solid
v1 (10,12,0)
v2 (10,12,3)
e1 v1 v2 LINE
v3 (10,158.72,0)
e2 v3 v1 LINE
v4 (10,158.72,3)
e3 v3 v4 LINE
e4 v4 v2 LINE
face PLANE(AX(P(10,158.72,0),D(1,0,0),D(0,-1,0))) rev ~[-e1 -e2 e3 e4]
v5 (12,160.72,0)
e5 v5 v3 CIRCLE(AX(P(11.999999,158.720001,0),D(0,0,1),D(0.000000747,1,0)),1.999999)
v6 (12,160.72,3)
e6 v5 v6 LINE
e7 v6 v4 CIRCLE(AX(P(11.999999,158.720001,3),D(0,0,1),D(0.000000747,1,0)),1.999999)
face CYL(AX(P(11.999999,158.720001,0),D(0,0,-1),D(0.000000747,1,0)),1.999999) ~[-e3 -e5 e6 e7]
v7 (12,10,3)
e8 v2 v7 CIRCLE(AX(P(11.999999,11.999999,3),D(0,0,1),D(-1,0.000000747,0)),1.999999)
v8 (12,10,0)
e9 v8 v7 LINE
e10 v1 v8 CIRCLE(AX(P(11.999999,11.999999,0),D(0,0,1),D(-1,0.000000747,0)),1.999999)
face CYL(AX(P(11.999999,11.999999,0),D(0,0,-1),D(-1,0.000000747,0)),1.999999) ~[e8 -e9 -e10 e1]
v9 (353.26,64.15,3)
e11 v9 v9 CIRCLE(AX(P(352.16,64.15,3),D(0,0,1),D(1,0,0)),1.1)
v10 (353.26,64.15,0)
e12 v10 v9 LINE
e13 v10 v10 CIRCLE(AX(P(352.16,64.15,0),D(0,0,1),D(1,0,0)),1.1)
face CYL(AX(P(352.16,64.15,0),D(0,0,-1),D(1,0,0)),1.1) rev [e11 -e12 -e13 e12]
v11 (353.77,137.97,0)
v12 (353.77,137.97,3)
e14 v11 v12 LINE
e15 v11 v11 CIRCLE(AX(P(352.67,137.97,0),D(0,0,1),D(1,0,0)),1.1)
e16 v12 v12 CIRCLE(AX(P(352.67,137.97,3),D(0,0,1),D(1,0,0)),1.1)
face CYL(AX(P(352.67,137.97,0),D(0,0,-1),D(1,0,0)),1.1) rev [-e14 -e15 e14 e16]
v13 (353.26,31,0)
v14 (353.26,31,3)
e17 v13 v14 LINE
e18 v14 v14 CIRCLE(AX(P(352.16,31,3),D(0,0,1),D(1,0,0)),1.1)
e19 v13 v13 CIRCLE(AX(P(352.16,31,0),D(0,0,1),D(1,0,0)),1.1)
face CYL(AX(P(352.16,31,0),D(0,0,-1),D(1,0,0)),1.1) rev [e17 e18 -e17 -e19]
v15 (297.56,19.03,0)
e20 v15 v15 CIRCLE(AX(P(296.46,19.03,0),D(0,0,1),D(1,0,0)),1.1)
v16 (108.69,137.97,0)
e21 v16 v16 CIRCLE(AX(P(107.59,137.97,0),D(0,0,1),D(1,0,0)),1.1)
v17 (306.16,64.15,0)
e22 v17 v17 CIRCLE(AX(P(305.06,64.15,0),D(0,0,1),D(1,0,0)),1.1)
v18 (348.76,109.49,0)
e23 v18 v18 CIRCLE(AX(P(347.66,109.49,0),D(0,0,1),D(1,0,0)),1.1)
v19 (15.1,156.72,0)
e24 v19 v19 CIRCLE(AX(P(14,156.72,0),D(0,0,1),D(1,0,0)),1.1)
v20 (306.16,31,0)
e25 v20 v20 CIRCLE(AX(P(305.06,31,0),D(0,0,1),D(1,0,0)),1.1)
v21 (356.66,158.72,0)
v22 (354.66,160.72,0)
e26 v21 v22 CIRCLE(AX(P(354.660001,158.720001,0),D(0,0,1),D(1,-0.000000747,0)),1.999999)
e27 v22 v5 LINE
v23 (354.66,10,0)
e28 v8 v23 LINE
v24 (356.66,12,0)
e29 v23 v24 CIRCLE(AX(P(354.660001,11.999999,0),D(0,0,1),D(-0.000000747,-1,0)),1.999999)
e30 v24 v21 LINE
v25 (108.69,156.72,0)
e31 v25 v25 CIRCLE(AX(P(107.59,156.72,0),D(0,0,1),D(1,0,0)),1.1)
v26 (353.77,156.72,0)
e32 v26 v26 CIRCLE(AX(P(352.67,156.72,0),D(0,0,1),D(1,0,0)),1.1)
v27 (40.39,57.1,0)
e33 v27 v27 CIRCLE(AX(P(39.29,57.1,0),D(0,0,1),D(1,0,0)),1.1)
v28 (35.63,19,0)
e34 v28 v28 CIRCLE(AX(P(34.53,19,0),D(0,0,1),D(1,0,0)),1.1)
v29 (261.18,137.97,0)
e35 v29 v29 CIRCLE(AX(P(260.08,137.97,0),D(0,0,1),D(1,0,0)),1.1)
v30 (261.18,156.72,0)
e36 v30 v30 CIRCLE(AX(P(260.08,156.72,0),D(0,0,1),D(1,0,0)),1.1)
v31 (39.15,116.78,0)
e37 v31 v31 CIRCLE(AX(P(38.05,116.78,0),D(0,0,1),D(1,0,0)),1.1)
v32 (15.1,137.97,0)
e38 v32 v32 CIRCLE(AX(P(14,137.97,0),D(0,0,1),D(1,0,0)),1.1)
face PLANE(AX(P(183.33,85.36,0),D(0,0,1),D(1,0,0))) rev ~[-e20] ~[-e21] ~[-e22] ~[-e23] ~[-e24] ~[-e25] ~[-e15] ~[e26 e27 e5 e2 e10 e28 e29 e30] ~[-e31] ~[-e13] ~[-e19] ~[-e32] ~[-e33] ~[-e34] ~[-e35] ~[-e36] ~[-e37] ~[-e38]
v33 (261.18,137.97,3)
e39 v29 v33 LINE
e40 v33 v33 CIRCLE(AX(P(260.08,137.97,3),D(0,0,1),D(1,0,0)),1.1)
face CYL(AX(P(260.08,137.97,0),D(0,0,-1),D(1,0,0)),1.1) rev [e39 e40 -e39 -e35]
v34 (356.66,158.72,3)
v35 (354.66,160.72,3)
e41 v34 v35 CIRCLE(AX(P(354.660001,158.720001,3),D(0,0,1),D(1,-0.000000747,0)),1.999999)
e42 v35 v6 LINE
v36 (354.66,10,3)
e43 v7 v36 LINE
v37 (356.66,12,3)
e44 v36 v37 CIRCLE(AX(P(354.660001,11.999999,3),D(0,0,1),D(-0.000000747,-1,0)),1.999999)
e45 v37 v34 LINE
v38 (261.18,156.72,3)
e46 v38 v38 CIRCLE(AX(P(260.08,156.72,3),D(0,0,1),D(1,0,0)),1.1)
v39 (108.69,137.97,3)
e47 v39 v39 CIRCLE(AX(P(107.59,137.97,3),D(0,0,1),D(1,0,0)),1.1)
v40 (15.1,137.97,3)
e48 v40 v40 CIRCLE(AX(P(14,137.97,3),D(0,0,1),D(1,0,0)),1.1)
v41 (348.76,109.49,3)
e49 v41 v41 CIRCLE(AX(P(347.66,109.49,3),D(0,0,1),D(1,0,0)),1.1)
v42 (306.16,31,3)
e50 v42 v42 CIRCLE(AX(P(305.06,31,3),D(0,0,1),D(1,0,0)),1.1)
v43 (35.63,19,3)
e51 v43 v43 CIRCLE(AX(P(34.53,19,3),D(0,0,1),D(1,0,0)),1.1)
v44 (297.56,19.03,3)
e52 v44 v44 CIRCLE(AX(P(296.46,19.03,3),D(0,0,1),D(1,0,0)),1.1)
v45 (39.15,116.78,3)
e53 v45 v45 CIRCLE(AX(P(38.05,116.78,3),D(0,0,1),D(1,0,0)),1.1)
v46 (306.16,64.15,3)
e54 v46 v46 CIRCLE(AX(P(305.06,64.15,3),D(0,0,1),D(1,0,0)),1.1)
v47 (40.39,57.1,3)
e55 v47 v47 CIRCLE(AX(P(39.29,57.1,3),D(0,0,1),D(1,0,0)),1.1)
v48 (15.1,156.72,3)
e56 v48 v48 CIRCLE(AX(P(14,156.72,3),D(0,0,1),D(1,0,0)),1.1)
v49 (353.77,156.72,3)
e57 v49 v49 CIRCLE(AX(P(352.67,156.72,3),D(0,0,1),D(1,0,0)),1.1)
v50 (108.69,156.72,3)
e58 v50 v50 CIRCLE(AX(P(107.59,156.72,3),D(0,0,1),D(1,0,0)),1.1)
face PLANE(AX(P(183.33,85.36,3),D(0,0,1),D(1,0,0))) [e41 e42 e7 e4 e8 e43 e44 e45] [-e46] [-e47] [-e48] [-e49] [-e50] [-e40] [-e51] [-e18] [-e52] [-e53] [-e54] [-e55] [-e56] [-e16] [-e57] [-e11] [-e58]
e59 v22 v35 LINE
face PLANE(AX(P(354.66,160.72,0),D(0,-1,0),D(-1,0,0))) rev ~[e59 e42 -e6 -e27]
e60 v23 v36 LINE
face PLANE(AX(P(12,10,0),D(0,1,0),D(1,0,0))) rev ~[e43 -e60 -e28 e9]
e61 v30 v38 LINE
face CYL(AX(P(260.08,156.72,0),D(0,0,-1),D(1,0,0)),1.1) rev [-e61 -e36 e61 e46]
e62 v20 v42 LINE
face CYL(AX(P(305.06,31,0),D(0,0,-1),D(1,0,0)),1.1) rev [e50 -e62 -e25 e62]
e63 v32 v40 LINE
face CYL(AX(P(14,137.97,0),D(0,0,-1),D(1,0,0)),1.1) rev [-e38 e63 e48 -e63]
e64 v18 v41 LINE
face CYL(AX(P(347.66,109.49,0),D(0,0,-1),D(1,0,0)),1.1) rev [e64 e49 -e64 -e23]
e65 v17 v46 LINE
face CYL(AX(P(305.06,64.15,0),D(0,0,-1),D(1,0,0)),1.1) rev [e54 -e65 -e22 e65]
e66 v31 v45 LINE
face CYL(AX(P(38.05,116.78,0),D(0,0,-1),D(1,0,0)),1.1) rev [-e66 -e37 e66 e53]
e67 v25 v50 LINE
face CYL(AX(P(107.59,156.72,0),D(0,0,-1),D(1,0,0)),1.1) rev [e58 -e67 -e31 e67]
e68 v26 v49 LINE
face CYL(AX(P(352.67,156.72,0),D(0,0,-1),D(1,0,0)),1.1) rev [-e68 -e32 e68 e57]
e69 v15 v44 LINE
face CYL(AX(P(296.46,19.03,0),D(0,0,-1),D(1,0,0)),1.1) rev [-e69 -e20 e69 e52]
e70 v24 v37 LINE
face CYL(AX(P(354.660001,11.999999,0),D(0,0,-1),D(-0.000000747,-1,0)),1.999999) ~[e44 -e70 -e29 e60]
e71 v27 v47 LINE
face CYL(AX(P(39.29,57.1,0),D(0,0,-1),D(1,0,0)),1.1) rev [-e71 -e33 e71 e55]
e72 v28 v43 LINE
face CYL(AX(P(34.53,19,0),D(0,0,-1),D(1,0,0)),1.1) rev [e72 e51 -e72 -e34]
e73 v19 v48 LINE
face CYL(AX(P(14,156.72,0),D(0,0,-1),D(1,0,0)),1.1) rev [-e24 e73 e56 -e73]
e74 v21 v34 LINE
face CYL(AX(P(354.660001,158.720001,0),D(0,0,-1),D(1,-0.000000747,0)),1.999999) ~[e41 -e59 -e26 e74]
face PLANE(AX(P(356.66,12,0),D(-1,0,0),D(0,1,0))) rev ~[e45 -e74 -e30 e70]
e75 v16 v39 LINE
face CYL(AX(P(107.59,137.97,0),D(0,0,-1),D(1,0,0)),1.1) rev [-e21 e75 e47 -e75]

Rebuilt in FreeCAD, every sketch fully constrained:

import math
import FreeCAD as App
import Part
import Sketcher

V = App.Vector
Q = App.Units.Quantity

doc = App.newDocument("Part")
body = doc.addObject("PartDesign::Body", "Body")

sketch1 = body.newObject("Sketcher::SketchObject", "Sketch")
sketch1.AttachmentSupport = (doc.getObject("XY_Plane"), [""])
sketch1.MapMode = "FlatFace"
sketch1.addGeometry(Part.LineSegment(V(12, 10, 0), V(354.66, 10, 0)), False)
sketch1.addGeometry(Part.ArcOfCircle(Part.Circle(V(354.660001, 11.999999, 0), V(0, 0, 1), 1.999999), math.radians(-90.000043), math.radians(0.000043)), False)
sketch1.addGeometry(Part.LineSegment(V(356.66, 12, 0), V(356.66, 158.72, 0)), False)
sketch1.addGeometry(Part.ArcOfCircle(Part.Circle(V(354.660001, 158.720001, 0), V(0, 0, 1), 1.999999), math.radians(-0.000043), math.radians(90.000043)), False)
sketch1.addGeometry(Part.LineSegment(V(354.66, 160.72, 0), V(12, 160.72, 0)), False)
sketch1.addGeometry(Part.ArcOfCircle(Part.Circle(V(11.999999, 158.720001, 0), V(0, 0, 1), 1.999999), math.radians(89.999957), math.radians(180.000043)), False)
sketch1.addGeometry(Part.LineSegment(V(10, 158.72, 0), V(10, 12, 0)), False)
sketch1.addGeometry(Part.ArcOfCircle(Part.Circle(V(11.999999, 11.999999, 0), V(0, 0, 1), 1.999999), math.radians(179.999957), math.radians(270.000043)), False)
sketch1.addGeometry(Part.Circle(V(34.53, 19, 0), V(0, 0, 1), 1.1), False)
sketch1.addGeometry(Part.Circle(V(39.29, 57.1, 0), V(0, 0, 1), 1.1), False)
sketch1.addGeometry(Part.Circle(V(296.46, 19.03, 0), V(0, 0, 1), 1.1), False)
sketch1.addGeometry(Part.Circle(V(305.06, 31, 0), V(0, 0, 1), 1.1), False)
sketch1.addGeometry(Part.Circle(V(352.16, 31, 0), V(0, 0, 1), 1.1), False)
sketch1.addGeometry(Part.Circle(V(305.06, 64.15, 0), V(0, 0, 1), 1.1), False)
sketch1.addGeometry(Part.Circle(V(352.16, 64.15, 0), V(0, 0, 1), 1.1), False)
sketch1.addGeometry(Part.Circle(V(38.05, 116.78, 0), V(0, 0, 1), 1.1), False)
sketch1.addGeometry(Part.Circle(V(14, 137.97, 0), V(0, 0, 1), 1.1), False)
sketch1.addGeometry(Part.Circle(V(14, 156.72, 0), V(0, 0, 1), 1.1), False)
sketch1.addGeometry(Part.Circle(V(107.59, 137.97, 0), V(0, 0, 1), 1.1), False)
sketch1.addGeometry(Part.Circle(V(107.59, 156.72, 0), V(0, 0, 1), 1.1), False)
sketch1.addGeometry(Part.Circle(V(347.66, 109.49, 0), V(0, 0, 1), 1.1), False)
sketch1.addGeometry(Part.Circle(V(260.08, 137.97, 0), V(0, 0, 1), 1.1), False)
sketch1.addGeometry(Part.Circle(V(260.08, 156.72, 0), V(0, 0, 1), 1.1), False)
sketch1.addGeometry(Part.Circle(V(352.67, 137.97, 0), V(0, 0, 1), 1.1), False)
sketch1.addGeometry(Part.Circle(V(352.67, 156.72, 0), V(0, 0, 1), 1.1), False)
sketch1.addConstraint(Sketcher.Constraint("Tangent", 0, 2, 1, 1))
sketch1.addConstraint(Sketcher.Constraint("Tangent", 1, 2, 2, 1))
sketch1.addConstraint(Sketcher.Constraint("Tangent", 2, 2, 3, 1))
sketch1.addConstraint(Sketcher.Constraint("Tangent", 3, 2, 4, 1))
sketch1.addConstraint(Sketcher.Constraint("Tangent", 4, 2, 5, 1))
sketch1.addConstraint(Sketcher.Constraint("Tangent", 5, 2, 6, 1))
sketch1.addConstraint(Sketcher.Constraint("Tangent", 6, 2, 7, 1))
sketch1.addConstraint(Sketcher.Constraint("Tangent", 7, 2, 0, 1))
sketch1.addConstraint(Sketcher.Constraint("Horizontal", 0))
sketch1.addConstraint(Sketcher.Constraint("Vertical", 2))
sketch1.addConstraint(Sketcher.Constraint("Horizontal", 4))
sketch1.addConstraint(Sketcher.Constraint("Vertical", 6))
sketch1.addConstraint(Sketcher.Constraint("Equal", 1, 3))
sketch1.addConstraint(Sketcher.Constraint("Equal", 3, 5))
sketch1.addConstraint(Sketcher.Constraint("Equal", 5, 7))
sketch1.addConstraint(Sketcher.Constraint("Equal", 8, 9))
sketch1.addConstraint(Sketcher.Constraint("Equal", 9, 10))
sketch1.addConstraint(Sketcher.Constraint("Equal", 10, 11))
sketch1.addConstraint(Sketcher.Constraint("Equal", 11, 12))
sketch1.addConstraint(Sketcher.Constraint("Equal", 12, 13))
sketch1.addConstraint(Sketcher.Constraint("Equal", 13, 14))
sketch1.addConstraint(Sketcher.Constraint("Equal", 14, 15))
sketch1.addConstraint(Sketcher.Constraint("Equal", 15, 16))
sketch1.addConstraint(Sketcher.Constraint("Equal", 16, 17))
sketch1.addConstraint(Sketcher.Constraint("Equal", 17, 18))
sketch1.addConstraint(Sketcher.Constraint("Equal", 18, 19))
sketch1.addConstraint(Sketcher.Constraint("Equal", 19, 20))
sketch1.addConstraint(Sketcher.Constraint("Equal", 20, 21))
sketch1.addConstraint(Sketcher.Constraint("Equal", 21, 22))
sketch1.addConstraint(Sketcher.Constraint("Equal", 22, 23))
sketch1.addConstraint(Sketcher.Constraint("Equal", 23, 24))
sketch1.addConstraint(Sketcher.Constraint("Horizontal", 11, 3, 12, 3))
sketch1.addConstraint(Sketcher.Constraint("Horizontal", 13, 3, 14, 3))
sketch1.addConstraint(Sketcher.Constraint("Horizontal", 16, 3, 18, 3))
sketch1.addConstraint(Sketcher.Constraint("Horizontal", 17, 3, 19, 3))
sketch1.addConstraint(Sketcher.Constraint("Horizontal", 18, 3, 21, 3))
sketch1.addConstraint(Sketcher.Constraint("Horizontal", 19, 3, 22, 3))
sketch1.addConstraint(Sketcher.Constraint("Horizontal", 21, 3, 23, 3))
sketch1.addConstraint(Sketcher.Constraint("Horizontal", 22, 3, 24, 3))
sketch1.addConstraint(Sketcher.Constraint("Vertical", 11, 3, 13, 3))
sketch1.addConstraint(Sketcher.Constraint("Vertical", 12, 3, 14, 3))
sketch1.addConstraint(Sketcher.Constraint("Vertical", 16, 3, 17, 3))
sketch1.addConstraint(Sketcher.Constraint("Vertical", 18, 3, 19, 3))
sketch1.addConstraint(Sketcher.Constraint("Vertical", 21, 3, 22, 3))
sketch1.addConstraint(Sketcher.Constraint("Vertical", 23, 3, 24, 3))
sketch1.addConstraint(Sketcher.Constraint("Radius", 1, Q("1.999999 mm")))
sketch1.addConstraint(Sketcher.Constraint("Diameter", 8, Q("2.2 mm")))
sketch1.addConstraint(Sketcher.Constraint("DistanceY", -1, 1, 1, 3, Q("11.999999 mm")))
sketch1.addConstraint(Sketcher.Constraint("DistanceX", -1, 1, 5, 3, Q("11.999999 mm")))
sketch1.addConstraint(Sketcher.Constraint("DistanceY", -1, 1, 8, 3, Q("19 mm")))
sketch1.addConstraint(Sketcher.Constraint("DistanceY", -1, 1, 11, 3, Q("31 mm")))
sketch1.addConstraint(Sketcher.Constraint("DistanceX", -1, 1, 16, 3, Q("14 mm")))
sketch1.addConstraint(Sketcher.Constraint("DistanceY", 17, 3, 5, 3, Q("2.000001 mm")))
sketch1.addConstraint(Sketcher.Constraint("DistanceX", 20, 3, 3, 3, Q("7.000001 mm")))
sketch1.addConstraint(Sketcher.Constraint("DistanceX", 0, 1, 0, 2, Q("342.66 mm")))
sketch1.addConstraint(Sketcher.Constraint("DistanceY", 2, 1, 2, 2, Q("146.72 mm")))
sketch1.addConstraint(Sketcher.Constraint("DistanceY", -1, 1, 9, 3, Q("57.1 mm")))
sketch1.addConstraint(Sketcher.Constraint("DistanceX", 10, 3, 1, 3, Q("58.200001 mm")))
sketch1.addConstraint(Sketcher.Constraint("DistanceX", 10, 3, 11, 3, Q("8.6 mm")))
sketch1.addConstraint(Sketcher.Constraint("DistanceX", 12, 3, 1, 3, Q("2.500001 mm")))
sketch1.addConstraint(Sketcher.Constraint("DistanceX", 9, 3, 18, 3, Q("68.3 mm")))
sketch1.addConstraint(Sketcher.Constraint("DistanceX", -1, 1, 8, 3, Q("34.53 mm")))
sketch1.addConstraint(Sketcher.Constraint("DistanceX", -1, 1, 9, 3, Q("39.29 mm")))
sketch1.addConstraint(Sketcher.Constraint("DistanceY", -1, 1, 10, 3, Q("19.03 mm")))
sketch1.addConstraint(Sketcher.Constraint("DistanceY", -1, 1, 13, 3, Q("64.15 mm")))
sketch1.addConstraint(Sketcher.Constraint("DistanceX", -1, 1, 15, 3, Q("38.05 mm")))
sketch1.addConstraint(Sketcher.Constraint("DistanceY", -1, 1, 15, 3, Q("116.78 mm")))
sketch1.addConstraint(Sketcher.Constraint("DistanceY", -1, 1, 16, 3, Q("137.97 mm")))
sketch1.addConstraint(Sketcher.Constraint("DistanceY", -1, 1, 20, 3, Q("109.49 mm")))
sketch1.addConstraint(Sketcher.Constraint("DistanceX", -1, 1, 21, 3, Q("260.08 mm")))
sketch1.addConstraint(Sketcher.Constraint("DistanceX", -1, 1, 23, 3, Q("352.67 mm")))
pad1 = body.newObject("PartDesign::Pad", "Pad")
pad1.Profile = sketch1
pad1.Length = 3

doc.recompute()
